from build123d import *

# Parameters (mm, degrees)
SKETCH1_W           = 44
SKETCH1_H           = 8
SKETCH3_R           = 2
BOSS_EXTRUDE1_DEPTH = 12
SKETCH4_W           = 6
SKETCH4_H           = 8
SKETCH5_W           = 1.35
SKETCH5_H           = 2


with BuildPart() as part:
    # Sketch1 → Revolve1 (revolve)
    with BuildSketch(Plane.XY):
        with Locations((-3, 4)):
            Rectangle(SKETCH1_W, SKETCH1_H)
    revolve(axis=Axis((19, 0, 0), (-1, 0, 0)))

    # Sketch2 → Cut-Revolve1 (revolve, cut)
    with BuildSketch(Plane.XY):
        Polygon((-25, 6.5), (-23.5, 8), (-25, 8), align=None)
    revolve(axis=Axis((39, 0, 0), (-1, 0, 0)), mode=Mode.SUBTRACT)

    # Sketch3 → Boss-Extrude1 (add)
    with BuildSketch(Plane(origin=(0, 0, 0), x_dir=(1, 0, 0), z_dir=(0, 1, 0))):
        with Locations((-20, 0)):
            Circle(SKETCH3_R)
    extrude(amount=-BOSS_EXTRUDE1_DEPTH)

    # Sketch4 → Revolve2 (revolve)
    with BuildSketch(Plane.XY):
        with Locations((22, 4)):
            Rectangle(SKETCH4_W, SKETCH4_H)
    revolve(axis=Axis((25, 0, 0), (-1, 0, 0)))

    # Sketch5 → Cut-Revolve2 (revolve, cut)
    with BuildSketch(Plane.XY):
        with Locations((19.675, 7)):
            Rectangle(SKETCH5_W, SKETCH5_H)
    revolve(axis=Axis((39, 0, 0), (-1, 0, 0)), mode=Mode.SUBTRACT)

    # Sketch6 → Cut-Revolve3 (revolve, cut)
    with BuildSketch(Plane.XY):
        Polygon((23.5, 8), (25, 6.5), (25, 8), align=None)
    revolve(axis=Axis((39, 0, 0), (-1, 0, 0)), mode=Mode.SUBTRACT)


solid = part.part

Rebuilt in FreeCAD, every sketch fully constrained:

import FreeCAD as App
import Part
import Sketcher
Q = App.Units.Quantity

doc = App.newDocument("Part")
body = doc.addObject("PartDesign::Body", "Body")

sketch1 = body.newObject("Sketcher::SketchObject", "Sketch")
sketch1.AttachmentSupport = (doc.getObject("XY_Plane"), [""])
sketch1.MapMode = "FlatFace"
sketch1.addGeometry([
    Part.LineSegment(App.Vector(-25, 8, 0), App.Vector(-25, 0, 0)),
    Part.LineSegment(App.Vector(-25, 0, 0), App.Vector(19, 0, 0)),
    Part.LineSegment(App.Vector(19, 0, 0), App.Vector(19, 8, 0)),
    Part.LineSegment(App.Vector(19, 8, 0), App.Vector(-25, 8, 0)),
], False)
sketch1.addConstraint([
    Sketcher.Constraint("Coincident", 0, 2, 1, 1),
    Sketcher.Constraint("Coincident", 1, 2, 2, 1),
    Sketcher.Constraint("Coincident", 2, 2, 3, 1),
    Sketcher.Constraint("Coincident", 3, 2, 0, 1),
    Sketcher.Constraint("Vertical", 0),
    Sketcher.Constraint("Horizontal", 1),
    Sketcher.Constraint("Vertical", 2),
    Sketcher.Constraint("Horizontal", 3),
    Sketcher.Constraint("PointOnObject", 0, 2, -1),
    Sketcher.Constraint("DistanceX", 1, 1, 1, 2, Q("44 mm")),
    Sketcher.Constraint("DistanceY", 0, 2, 0, 1, Q("8 mm")),
    Sketcher.Constraint("DistanceX", 0, 2, -1, 1, Q("25 mm")),
])
revolution = body.newObject("PartDesign::Revolution", "Revolution")
revolution.Profile = sketch1
revolution.ReferenceAxis = (sketch1, ["H_Axis"])
revolution.Angle = 360

sketch2 = body.newObject("Sketcher::SketchObject", "Sketch001")
sketch2.AttachmentSupport = (doc.getObject("XY_Plane"), [""])
sketch2.MapMode = "FlatFace"
sketch2.addGeometry([
    Part.LineSegment(App.Vector(-25, 6.5, 0), App.Vector(-23.5, 8, 0)),
    Part.LineSegment(App.Vector(-23.5, 8, 0), App.Vector(-25, 8, 0)),
    Part.LineSegment(App.Vector(-25, 8, 0), App.Vector(-25, 6.5, 0)),
], False)
sketch2.addConstraint([
    Sketcher.Constraint("Coincident", 0, 2, 1, 1),
    Sketcher.Constraint("Coincident", 1, 2, 2, 1),
    Sketcher.Constraint("Coincident", 2, 2, 0, 1),
    Sketcher.Constraint("Horizontal", 1),
    Sketcher.Constraint("Vertical", 2),
    Sketcher.Constraint("Equal", 1, 2),
    Sketcher.Constraint("DistanceX", 1, 2, 1, 1, Q("1.5 mm")),
    Sketcher.Constraint("DistanceY", -1, 1, 0, 2, Q("8 mm")),
    Sketcher.Constraint("DistanceX", 1, 2, -1, 1, Q("25 mm")),
])
groove = body.newObject("PartDesign::Groove", "Groove")
groove.Profile = sketch2
groove.ReferenceAxis = (sketch2, ["H_Axis"])
groove.Angle = 360

sketch3 = body.newObject("Sketcher::SketchObject", "Sketch002")
sketch3.AttachmentSupport = (doc.getObject("XZ_Plane"), [""])
sketch3.MapMode = "FlatFace"
sketch3.addGeometry(Part.Circle(App.Vector(-20, 0, 0), App.Vector(0, 0, 1), 2), False)
sketch3.addConstraint([
    Sketcher.Constraint("PointOnObject", 0, 3, -1),
    Sketcher.Constraint("Diameter", 0, Q("4 mm")),
    Sketcher.Constraint("DistanceX", 0, 3, -1, 1, Q("20 mm")),
])
pad1 = body.newObject("PartDesign::Pad", "Pad")
pad1.Profile = sketch3
pad1.Length = 12

sketch4 = body.newObject("Sketcher::SketchObject", "Sketch003")
sketch4.AttachmentSupport = (doc.getObject("XY_Plane"), [""])
sketch4.MapMode = "FlatFace"
sketch4.addGeometry([
    Part.LineSegment(App.Vector(19, 8, 0), App.Vector(19, 0, 0)),
    Part.LineSegment(App.Vector(19, 0, 0), App.Vector(25, 0, 0)),
    Part.LineSegment(App.Vector(25, 0, 0), App.Vector(25, 8, 0)),
    Part.LineSegment(App.Vector(25, 8, 0), App.Vector(19, 8, 0)),
], False)
sketch4.addConstraint([
    Sketcher.Constraint("Coincident", 0, 2, 1, 1),
    Sketcher.Constraint("Coincident", 1, 2, 2, 1),
    Sketcher.Constraint("Coincident", 2, 2, 3, 1),
    Sketcher.Constraint("Coincident", 3, 2, 0, 1),
    Sketcher.Constraint("Vertical", 0),
    Sketcher.Constraint("Horizontal", 1),
    Sketcher.Constraint("Vertical", 2),
    Sketcher.Constraint("Horizontal", 3),
    Sketcher.Constraint("PointOnObject", 0, 2, -1),
    Sketcher.Constraint("DistanceX", 1, 1, 1, 2, Q("6 mm")),
    Sketcher.Constraint("DistanceY", 0, 2, 0, 1, Q("8 mm")),
    Sketcher.Constraint("DistanceX", -1, 1, 0, 2, Q("19 mm")),
])
revolution2 = body.newObject("PartDesign::Revolution", "Revolution001")
revolution2.Profile = sketch4
revolution2.ReferenceAxis = (sketch4, ["H_Axis"])
revolution2.Angle = 360

sketch5 = body.newObject("Sketcher::SketchObject", "Sketch004")
sketch5.AttachmentSupport = (doc.getObject("XY_Plane"), [""])
sketch5.MapMode = "FlatFace"
sketch5.addGeometry([
    Part.LineSegment(App.Vector(19, 8, 0), App.Vector(19, 6, 0)),
    Part.LineSegment(App.Vector(19, 6, 0), App.Vector(20.35, 6, 0)),
    Part.LineSegment(App.Vector(20.35, 6, 0), App.Vector(20.35, 8, 0)),
    Part.LineSegment(App.Vector(20.35, 8, 0), App.Vector(19, 8, 0)),
], False)
sketch5.addConstraint([
    Sketcher.Constraint("Coincident", 0, 2, 1, 1),
    Sketcher.Constraint("Coincident", 1, 2, 2, 1),
    Sketcher.Constraint("Coincident", 2, 2, 3, 1),
    Sketcher.Constraint("Coincident", 3, 2, 0, 1),
    Sketcher.Constraint("Vertical", 0),
    Sketcher.Constraint("Horizontal", 1),
    Sketcher.Constraint("Vertical", 2),
    Sketcher.Constraint("Horizontal", 3),
    Sketcher.Constraint("DistanceY", 0, 2, 0, 1, Q("2 mm")),
    Sketcher.Constraint("DistanceX", -1, 1, 0, 2, Q("19 mm")),
    Sketcher.Constraint("DistanceY", -1, 1, 0, 2, Q("6 mm")),
    Sketcher.Constraint("DistanceX", 1, 1, 1, 2, Q("1.35 mm")),
])
groove2 = body.newObject("PartDesign::Groove", "Groove001")
groove2.Profile = sketch5
groove2.ReferenceAxis = (sketch5, ["H_Axis"])
groove2.Angle = 360

sketch6 = body.newObject("Sketcher::SketchObject", "Sketch005")
sketch6.AttachmentSupport = (doc.getObject("XY_Plane"), [""])
sketch6.MapMode = "FlatFace"
sketch6.addGeometry([
    Part.LineSegment(App.Vector(23.5, 8, 0), App.Vector(25, 6.5, 0)),
    Part.LineSegment(App.Vector(25, 6.5, 0), App.Vector(25, 8, 0)),
    Part.LineSegment(App.Vector(25, 8, 0), App.Vector(23.5, 8, 0)),
], False)
sketch6.addConstraint([
    Sketcher.Constraint("Coincident", 0, 2, 1, 1),
    Sketcher.Constraint("Coincident", 1, 2, 2, 1),
    Sketcher.Constraint("Coincident", 2, 2, 0, 1),
    Sketcher.Constraint("Vertical", 1),
    Sketcher.Constraint("Horizontal", 2),
    Sketcher.Constraint("Equal", 2, 1),
    Sketcher.Constraint("DistanceX", 2, 2, 2, 1, Q("1.5 mm")),
    Sketcher.Constraint("DistanceX", -1, 1, 0, 2, Q("25 mm")),
    Sketcher.Constraint("DistanceY", -1, 1, 1, 2, Q("8 mm")),
])
groove3 = body.newObject("PartDesign::Groove", "Groove002")
groove3.Profile = sketch6
groove3.ReferenceAxis = (sketch6, ["H_Axis"])
groove3.Angle = 360

doc.recompute()
